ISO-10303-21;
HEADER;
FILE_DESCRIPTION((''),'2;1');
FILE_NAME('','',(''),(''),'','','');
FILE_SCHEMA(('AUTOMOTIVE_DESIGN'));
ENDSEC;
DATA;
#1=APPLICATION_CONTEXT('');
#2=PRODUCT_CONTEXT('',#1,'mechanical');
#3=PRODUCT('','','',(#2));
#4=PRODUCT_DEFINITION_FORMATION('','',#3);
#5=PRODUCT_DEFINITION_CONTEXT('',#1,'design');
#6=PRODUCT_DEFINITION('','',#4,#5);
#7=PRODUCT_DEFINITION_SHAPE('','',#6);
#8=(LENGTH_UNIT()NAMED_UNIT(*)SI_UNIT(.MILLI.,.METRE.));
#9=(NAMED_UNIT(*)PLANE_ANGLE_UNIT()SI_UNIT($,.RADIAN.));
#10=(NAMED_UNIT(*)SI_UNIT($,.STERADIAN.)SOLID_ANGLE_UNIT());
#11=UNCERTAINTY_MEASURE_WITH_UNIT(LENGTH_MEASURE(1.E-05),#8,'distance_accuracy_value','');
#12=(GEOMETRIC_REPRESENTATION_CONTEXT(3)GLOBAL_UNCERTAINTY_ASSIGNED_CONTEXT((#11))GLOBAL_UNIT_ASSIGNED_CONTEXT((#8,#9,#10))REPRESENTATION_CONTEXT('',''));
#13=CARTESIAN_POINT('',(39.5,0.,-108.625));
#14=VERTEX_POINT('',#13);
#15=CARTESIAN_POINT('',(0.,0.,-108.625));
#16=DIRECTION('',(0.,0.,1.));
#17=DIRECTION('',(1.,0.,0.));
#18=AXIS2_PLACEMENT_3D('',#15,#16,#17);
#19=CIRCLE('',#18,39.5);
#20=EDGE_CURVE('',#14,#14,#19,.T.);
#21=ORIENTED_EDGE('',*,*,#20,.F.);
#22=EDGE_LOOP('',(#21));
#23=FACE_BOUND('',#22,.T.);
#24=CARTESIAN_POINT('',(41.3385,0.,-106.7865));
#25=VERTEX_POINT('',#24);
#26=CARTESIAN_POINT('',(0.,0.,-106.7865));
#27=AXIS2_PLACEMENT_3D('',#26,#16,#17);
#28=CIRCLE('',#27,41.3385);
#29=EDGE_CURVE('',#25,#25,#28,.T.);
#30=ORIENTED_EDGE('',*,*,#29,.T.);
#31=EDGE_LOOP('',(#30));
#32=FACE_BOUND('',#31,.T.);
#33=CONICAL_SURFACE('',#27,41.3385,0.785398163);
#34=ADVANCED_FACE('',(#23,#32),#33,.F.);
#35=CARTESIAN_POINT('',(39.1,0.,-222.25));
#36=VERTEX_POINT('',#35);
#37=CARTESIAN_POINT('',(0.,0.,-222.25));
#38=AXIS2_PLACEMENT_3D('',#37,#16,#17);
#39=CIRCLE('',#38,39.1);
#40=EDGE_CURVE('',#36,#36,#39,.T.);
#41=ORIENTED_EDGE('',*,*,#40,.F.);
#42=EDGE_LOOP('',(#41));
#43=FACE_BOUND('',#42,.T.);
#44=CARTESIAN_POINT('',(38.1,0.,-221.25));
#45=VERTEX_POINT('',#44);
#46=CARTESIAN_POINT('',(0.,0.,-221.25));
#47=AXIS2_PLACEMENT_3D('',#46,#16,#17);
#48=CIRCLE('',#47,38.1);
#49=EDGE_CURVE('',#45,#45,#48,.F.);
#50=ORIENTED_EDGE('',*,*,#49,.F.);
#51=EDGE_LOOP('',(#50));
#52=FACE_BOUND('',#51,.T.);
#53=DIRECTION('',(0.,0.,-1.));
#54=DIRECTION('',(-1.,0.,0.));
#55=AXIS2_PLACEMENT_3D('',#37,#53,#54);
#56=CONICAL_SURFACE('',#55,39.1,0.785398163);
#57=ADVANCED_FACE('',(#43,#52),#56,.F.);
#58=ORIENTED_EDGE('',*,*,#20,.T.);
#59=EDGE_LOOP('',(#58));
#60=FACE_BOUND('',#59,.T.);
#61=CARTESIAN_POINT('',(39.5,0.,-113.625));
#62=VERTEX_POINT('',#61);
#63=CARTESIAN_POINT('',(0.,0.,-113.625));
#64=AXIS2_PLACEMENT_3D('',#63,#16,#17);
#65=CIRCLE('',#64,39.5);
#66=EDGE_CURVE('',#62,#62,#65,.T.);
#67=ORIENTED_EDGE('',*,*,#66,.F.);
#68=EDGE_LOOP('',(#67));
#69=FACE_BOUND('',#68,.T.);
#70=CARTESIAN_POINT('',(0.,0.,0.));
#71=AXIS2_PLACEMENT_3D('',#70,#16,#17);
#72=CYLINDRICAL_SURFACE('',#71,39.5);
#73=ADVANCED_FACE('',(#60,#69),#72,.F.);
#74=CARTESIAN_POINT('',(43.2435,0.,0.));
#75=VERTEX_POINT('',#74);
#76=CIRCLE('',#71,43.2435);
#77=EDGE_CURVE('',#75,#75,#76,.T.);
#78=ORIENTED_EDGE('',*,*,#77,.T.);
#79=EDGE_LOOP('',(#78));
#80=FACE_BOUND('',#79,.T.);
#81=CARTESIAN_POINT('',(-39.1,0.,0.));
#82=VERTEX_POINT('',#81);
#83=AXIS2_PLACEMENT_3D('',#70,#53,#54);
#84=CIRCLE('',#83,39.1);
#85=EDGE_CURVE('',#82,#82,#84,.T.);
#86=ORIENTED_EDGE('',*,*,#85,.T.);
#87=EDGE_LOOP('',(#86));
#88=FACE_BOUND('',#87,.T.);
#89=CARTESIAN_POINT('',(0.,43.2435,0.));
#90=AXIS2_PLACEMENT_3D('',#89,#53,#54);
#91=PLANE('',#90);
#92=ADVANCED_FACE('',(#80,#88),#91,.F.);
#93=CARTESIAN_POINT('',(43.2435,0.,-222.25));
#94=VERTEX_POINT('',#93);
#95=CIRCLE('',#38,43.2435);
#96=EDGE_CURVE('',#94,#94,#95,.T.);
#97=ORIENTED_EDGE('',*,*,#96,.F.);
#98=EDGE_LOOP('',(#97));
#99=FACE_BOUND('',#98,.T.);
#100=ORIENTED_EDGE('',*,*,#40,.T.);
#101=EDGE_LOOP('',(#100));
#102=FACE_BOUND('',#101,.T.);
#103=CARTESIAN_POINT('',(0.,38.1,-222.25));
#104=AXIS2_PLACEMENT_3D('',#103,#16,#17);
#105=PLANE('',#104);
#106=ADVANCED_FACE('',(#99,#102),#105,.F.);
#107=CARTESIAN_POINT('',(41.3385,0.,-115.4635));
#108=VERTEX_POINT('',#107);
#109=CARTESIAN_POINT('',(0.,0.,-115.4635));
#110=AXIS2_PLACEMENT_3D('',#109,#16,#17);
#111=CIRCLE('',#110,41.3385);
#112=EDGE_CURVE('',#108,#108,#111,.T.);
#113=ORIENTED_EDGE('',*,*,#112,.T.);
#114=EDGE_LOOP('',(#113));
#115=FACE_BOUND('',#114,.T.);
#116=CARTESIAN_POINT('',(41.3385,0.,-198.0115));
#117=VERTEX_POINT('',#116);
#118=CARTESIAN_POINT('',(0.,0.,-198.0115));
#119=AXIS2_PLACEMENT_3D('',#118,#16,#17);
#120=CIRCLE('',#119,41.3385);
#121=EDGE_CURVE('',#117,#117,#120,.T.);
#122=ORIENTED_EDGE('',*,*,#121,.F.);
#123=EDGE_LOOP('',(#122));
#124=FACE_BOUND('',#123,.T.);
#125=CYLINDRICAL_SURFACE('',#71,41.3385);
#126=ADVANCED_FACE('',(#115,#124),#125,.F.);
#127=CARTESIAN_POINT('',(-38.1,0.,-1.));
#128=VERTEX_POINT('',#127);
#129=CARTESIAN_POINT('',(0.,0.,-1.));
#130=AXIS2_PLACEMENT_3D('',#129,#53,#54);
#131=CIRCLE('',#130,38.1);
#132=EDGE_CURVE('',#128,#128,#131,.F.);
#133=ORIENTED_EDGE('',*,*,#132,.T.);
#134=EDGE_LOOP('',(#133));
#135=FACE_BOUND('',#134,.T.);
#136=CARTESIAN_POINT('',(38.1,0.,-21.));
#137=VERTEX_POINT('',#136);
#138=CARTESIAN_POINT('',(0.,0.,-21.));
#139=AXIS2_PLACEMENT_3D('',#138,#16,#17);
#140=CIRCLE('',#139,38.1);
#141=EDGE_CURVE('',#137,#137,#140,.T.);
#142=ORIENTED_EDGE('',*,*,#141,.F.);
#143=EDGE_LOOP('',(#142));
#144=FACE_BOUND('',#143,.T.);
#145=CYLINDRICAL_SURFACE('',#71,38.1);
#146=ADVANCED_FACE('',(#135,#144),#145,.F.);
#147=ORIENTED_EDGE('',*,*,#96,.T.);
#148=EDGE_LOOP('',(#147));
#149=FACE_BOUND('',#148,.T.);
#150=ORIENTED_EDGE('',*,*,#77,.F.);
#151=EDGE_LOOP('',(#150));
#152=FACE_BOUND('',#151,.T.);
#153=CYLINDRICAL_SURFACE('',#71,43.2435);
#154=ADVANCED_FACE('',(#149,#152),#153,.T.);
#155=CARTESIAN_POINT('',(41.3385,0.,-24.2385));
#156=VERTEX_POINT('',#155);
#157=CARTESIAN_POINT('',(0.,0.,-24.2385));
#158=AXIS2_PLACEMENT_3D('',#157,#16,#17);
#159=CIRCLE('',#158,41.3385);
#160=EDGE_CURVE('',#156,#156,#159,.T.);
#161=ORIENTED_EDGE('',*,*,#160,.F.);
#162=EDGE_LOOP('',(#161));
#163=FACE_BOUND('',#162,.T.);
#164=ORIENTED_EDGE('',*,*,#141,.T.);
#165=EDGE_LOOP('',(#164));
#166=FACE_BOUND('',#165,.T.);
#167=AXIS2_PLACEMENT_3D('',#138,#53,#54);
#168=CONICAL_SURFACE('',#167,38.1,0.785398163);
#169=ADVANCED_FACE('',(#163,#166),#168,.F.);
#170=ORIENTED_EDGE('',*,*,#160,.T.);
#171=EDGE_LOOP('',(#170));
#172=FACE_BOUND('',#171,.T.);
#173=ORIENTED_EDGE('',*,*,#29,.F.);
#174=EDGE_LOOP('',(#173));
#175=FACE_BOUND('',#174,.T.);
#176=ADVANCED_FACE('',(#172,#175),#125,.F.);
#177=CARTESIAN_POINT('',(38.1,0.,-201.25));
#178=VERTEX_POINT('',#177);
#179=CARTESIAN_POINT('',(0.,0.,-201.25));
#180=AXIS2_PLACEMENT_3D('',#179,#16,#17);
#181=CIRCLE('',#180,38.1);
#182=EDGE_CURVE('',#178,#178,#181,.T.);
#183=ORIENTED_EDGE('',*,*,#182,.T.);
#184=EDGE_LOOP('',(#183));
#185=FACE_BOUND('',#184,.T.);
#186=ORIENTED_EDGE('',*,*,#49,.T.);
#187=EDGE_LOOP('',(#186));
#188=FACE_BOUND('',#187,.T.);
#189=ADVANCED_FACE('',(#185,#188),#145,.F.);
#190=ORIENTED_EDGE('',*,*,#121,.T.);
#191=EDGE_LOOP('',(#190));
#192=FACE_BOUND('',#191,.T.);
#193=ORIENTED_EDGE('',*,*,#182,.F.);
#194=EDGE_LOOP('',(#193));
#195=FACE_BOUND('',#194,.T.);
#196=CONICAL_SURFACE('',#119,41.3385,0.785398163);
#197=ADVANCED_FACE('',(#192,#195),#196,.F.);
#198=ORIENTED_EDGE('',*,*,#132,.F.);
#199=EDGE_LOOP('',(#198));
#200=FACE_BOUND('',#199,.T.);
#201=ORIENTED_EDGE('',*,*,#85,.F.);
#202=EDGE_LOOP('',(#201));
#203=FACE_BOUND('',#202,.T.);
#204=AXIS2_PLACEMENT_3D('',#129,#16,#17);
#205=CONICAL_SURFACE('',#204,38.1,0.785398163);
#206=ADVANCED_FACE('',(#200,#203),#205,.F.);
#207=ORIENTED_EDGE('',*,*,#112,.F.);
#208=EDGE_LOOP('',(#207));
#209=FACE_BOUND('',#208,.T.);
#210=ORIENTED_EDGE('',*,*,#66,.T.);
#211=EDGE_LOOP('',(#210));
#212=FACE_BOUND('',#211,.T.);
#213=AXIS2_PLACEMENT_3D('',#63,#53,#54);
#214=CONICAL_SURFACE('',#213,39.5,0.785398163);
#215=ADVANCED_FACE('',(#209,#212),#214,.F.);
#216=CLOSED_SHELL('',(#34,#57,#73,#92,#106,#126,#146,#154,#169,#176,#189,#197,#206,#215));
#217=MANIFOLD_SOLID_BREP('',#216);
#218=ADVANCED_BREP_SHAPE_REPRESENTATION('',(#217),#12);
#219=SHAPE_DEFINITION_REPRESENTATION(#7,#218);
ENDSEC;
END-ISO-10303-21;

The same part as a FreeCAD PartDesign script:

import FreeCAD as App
import Part
import Sketcher
Q = App.Units.Quantity


def edges_at(feature, points):
    """Names of the edges that pass closest to the given points."""
    edges = feature.Shape.Edges
    near = lambda p: min(range(len(edges)), key=lambda i: edges[i].distToShape(Part.Vertex(*p))[0])
    return sorted({f"Edge{near(p) + 1}" for p in points})


def add_polygon(sketch, points):
    """Adds a closed chain of lines whose ends are joined by coincident constraints."""
    first, n = sketch.GeometryCount, len(points)
    for a, b in zip(points, points[1:] + points[:1]):
        sketch.addGeometry(Part.LineSegment(App.Vector(*a, 0), App.Vector(*b, 0)), False)
    for i in range(n):
        sketch.addConstraint(Sketcher.Constraint("Coincident", first + i, 2, first + (i + 1) % n, 1))

doc = App.newDocument("Part")
body = doc.addObject("PartDesign::Body", "Body")

# Sketch on YZ plane
sketch1 = doc.addObject("Sketcher::SketchObject", "Sketch")
body.addObject(sketch1)
sketch1.AttachmentSupport = (doc.YZ_Plane, [""])
sketch1.MapMode = "FlatFace"
add_polygon(sketch1, [(43.2, -222.2), (43.2, 0), (38.1, 0), (38.1, -21), (41.3, -24.2), (41.3, -106.8), (39.5, -108.6), (39.5, -113.6), (41.3, -115.5), (41.3, -198), (38.1, -201.2), (38.1, -222.2)])  # lines 0-11
sketch1.addConstraint(Sketcher.Constraint("Vertical", 0))
sketch1.addConstraint(Sketcher.Constraint("Horizontal", 1))
sketch1.addConstraint(Sketcher.Constraint("Vertical", 2))
sketch1.addConstraint(Sketcher.Constraint("Vertical", 4))
sketch1.addConstraint(Sketcher.Constraint("Vertical", 6))
sketch1.addConstraint(Sketcher.Constraint("Vertical", 8))
sketch1.addConstraint(Sketcher.Constraint("Vertical", 10))
sketch1.addConstraint(Sketcher.Constraint("Horizontal", 11))
sketch1.addConstraint(Sketcher.Constraint("PointOnObject", 0, 2, -1))
sketch1.addConstraint(Sketcher.Constraint("Perpendicular", 3, 5))
sketch1.addConstraint(Sketcher.Constraint("Perpendicular", 5, 7))
sketch1.addConstraint(Sketcher.Constraint("Perpendicular", 7, 9))
sketch1.addConstraint(Sketcher.Constraint("Vertical", 4, 2, 7, 2))
sketch1.addConstraint(Sketcher.Constraint("Vertical", 2, 2, 9, 2))
sketch1.addConstraint(Sketcher.Constraint("Equal", 4, 8))
sketch1.addConstraint(Sketcher.Constraint("Equal", 2, 10))
sketch1.addConstraint(Sketcher.Constraint("Equal", 5, 7))
sketch1.addConstraint(Sketcher.Constraint("DistanceY", 2, 2, 2, 1, Q("21 mm")))
sketch1.addConstraint(Sketcher.Constraint("DistanceY", 6, 2, 6, 1, Q("5 mm")))
sketch1.addConstraint(Sketcher.Constraint("DistanceY", 0, 1, 0, 2, Q("222.25 mm")))
sketch1.addConstraint(Sketcher.Constraint("DistanceX", -1, 1, 1, 2, Q("38.1 mm")))
sketch1.addConstraint(Sketcher.Constraint("DistanceX", -1, 1, 5, 2, Q("39.5 mm")))
sketch1.addConstraint(Sketcher.Constraint("DistanceY", 4, 2, 4, 1, Q("82.548 mm")))
sketch1.addConstraint(Sketcher.Constraint("DistanceX", 1, 2, 1, 1, Q("5.1435 mm")))
revolution = doc.addObject("PartDesign::Revolution", "Revolution")
body.addObject(revolution)
revolution.Profile = sketch1
revolution.ReferenceAxis = (sketch1, ["V_Axis"])
revolution.Angle = 360
doc.recompute()

chamfer = doc.addObject("PartDesign::Chamfer", "Chamfer")
body.addObject(chamfer)
chamfer.Base = (revolution, edges_at(revolution, [(0, -38.1, 0), (0, -38.1, -222.25)]))
chamfer.Size = 1

doc.recompute()
